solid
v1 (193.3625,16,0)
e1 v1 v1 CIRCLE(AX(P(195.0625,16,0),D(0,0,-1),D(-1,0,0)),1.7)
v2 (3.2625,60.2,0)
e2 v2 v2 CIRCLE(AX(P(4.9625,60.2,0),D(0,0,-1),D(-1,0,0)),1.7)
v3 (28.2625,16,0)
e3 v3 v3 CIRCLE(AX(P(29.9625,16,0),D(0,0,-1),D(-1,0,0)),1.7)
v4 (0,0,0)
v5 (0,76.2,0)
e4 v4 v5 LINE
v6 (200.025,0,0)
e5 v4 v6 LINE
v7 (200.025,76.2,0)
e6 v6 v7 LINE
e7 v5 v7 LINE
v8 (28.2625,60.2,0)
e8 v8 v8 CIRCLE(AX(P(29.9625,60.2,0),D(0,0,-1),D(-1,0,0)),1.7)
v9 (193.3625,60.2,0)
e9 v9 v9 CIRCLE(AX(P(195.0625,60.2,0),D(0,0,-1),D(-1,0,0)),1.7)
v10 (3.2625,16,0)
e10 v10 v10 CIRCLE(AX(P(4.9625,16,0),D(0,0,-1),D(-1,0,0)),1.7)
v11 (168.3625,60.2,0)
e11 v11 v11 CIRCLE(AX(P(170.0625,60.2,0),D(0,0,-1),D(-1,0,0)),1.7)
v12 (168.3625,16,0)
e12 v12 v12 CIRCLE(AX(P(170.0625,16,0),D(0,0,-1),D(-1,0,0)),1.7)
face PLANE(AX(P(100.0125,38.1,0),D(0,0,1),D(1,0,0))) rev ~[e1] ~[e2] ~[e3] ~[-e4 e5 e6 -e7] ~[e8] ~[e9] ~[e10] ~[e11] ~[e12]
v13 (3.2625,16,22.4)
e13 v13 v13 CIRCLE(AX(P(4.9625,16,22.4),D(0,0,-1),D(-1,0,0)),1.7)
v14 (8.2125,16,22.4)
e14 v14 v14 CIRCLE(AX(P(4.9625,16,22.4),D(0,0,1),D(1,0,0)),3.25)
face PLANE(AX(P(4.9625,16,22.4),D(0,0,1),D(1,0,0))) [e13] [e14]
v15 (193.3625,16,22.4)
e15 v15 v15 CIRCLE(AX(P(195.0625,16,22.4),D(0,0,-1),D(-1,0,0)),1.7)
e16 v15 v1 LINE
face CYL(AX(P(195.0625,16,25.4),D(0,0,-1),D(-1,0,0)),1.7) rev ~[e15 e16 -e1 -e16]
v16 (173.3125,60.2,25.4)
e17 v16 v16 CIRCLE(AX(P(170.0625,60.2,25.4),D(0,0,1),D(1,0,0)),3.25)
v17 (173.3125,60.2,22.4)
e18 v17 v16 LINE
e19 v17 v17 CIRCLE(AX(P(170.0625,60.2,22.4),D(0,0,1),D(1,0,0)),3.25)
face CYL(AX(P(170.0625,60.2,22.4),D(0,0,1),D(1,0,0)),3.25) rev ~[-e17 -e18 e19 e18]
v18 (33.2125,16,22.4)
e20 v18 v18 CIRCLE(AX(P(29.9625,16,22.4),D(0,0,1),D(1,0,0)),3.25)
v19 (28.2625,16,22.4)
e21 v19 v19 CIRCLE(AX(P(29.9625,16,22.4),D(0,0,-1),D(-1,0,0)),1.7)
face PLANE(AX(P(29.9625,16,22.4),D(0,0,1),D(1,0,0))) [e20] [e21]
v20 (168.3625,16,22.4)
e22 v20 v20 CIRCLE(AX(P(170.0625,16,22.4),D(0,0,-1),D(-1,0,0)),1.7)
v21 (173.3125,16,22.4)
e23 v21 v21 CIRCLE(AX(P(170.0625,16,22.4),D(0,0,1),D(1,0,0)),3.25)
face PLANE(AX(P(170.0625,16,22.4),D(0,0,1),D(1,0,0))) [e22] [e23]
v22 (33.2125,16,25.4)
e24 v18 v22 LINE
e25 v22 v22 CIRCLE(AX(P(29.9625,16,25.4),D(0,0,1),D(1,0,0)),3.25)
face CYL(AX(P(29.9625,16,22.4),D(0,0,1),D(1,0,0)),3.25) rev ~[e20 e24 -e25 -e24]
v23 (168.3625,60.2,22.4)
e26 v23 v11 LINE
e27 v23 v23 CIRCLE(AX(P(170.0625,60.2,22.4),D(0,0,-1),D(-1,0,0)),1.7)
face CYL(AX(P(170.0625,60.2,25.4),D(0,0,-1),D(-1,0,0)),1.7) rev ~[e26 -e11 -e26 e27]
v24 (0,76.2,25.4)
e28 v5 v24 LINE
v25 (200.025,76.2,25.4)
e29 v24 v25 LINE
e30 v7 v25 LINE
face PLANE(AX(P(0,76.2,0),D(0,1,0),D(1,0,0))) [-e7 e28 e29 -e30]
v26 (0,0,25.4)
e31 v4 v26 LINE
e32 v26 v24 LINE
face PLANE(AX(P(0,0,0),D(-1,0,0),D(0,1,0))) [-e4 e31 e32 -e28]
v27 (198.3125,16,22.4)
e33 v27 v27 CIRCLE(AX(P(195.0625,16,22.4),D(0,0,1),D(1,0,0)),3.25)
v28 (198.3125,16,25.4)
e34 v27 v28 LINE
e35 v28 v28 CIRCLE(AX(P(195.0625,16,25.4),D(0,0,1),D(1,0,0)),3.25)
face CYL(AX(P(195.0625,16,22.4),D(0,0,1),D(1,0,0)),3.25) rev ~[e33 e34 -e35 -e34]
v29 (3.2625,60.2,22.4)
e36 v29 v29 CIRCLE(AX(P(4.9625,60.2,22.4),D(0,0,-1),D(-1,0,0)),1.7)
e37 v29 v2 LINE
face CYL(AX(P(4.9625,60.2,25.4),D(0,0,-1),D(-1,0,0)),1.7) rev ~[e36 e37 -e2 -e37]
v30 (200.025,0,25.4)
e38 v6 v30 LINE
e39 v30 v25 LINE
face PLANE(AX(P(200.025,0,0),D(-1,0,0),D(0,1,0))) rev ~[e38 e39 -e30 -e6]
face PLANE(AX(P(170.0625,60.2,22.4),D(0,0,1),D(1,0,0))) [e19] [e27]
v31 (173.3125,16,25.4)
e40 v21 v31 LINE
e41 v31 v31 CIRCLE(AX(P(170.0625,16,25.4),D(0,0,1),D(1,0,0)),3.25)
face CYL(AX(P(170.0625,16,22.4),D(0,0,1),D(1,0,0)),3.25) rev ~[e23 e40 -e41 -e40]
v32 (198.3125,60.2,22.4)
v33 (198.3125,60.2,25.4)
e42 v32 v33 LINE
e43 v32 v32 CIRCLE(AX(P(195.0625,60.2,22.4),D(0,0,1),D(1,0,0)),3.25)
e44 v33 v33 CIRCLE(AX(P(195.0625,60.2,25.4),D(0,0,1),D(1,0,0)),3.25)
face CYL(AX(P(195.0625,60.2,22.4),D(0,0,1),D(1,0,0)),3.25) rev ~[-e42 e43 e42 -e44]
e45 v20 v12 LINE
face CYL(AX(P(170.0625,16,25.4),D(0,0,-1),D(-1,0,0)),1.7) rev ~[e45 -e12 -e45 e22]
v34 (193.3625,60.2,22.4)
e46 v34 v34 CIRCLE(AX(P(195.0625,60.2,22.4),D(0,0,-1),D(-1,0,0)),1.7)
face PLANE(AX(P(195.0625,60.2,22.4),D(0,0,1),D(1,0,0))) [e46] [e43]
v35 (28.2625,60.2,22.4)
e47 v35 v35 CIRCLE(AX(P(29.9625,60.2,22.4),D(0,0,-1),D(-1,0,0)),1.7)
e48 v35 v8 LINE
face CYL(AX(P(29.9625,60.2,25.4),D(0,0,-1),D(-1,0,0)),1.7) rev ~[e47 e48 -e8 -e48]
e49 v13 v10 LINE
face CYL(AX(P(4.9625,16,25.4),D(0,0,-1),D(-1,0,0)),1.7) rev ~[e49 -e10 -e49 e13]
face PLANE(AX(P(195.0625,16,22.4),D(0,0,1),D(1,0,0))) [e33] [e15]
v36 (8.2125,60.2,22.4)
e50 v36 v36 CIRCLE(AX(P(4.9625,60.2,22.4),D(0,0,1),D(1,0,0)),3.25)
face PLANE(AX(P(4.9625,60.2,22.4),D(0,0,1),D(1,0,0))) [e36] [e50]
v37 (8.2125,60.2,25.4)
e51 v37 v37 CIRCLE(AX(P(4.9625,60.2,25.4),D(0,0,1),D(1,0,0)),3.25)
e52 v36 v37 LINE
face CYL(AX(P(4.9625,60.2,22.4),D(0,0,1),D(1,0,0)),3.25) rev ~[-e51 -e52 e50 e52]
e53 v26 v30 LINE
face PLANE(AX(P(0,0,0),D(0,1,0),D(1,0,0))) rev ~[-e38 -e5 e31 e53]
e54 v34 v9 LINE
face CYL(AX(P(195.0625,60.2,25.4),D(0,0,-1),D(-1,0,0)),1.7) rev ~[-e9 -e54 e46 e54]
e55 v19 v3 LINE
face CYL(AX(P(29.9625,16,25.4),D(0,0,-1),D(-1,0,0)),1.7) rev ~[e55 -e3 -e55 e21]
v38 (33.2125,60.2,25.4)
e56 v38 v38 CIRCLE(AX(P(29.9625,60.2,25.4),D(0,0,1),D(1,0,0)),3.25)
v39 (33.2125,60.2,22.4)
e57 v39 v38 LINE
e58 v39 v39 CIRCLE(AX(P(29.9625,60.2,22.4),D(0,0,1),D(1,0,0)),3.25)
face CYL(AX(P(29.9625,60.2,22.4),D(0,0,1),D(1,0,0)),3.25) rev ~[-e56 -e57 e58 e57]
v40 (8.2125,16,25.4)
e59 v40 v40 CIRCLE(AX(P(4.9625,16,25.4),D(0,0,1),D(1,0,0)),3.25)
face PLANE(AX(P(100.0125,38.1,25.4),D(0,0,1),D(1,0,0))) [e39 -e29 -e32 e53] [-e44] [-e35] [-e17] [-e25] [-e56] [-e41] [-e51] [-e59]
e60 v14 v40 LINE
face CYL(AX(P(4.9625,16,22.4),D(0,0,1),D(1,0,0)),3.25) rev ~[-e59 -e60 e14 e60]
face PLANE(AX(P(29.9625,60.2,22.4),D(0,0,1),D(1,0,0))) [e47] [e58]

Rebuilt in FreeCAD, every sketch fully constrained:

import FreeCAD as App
import Part
import Sketcher
from FreeCAD import Vector
Q = App.Units.Quantity

doc = App.newDocument("Part")
body = doc.addObject("PartDesign::Body", "Body")

sketch1 = body.newObject("Sketcher::SketchObject", "Sketch")
sketch1.AttachmentSupport = (doc.getObject("XY_Plane"), [""])
sketch1.MapMode = "FlatFace"
sketch1.addGeometry([
    Part.LineSegment(Vector(0, 76, 0), Vector(0, 0, 0)),
    Part.LineSegment(Vector(0, 0, 0), Vector(200, 0, 0)),
    Part.LineSegment(Vector(200, 0, 0), Vector(200, 76, 0)),
    Part.LineSegment(Vector(200, 76, 0), Vector(0, 76, 0)),
], False)
sketch1.addConstraint([
    Sketcher.Constraint("Coincident", 0, 2, 1, 1),
    Sketcher.Constraint("Coincident", 1, 2, 2, 1),
    Sketcher.Constraint("Coincident", 2, 2, 3, 1),
    Sketcher.Constraint("Coincident", 3, 2, 0, 1),
    Sketcher.Constraint("Vertical", 0),
    Sketcher.Constraint("Horizontal", 1),
    Sketcher.Constraint("Vertical", 2),
    Sketcher.Constraint("Horizontal", 3),
    Sketcher.Constraint("Coincident", 0, 2, -1, 1),
    Sketcher.Constraint("DistanceY", 0, 2, 0, 1, Q("3 in")),
    Sketcher.Constraint("DistanceX", 1, 1, 1, 2, Q("7.875 in")),
])
pad1 = body.newObject("PartDesign::Pad", "Pad")
pad1.Profile = sketch1
pad1.Length = Q("1 in")

sketch2 = body.newObject("Sketcher::SketchObject", "Sketch001")
sketch2.AttachmentSupport = (doc.getObject("XY_Plane"), [""])
sketch2.MapMode = "FlatFace"
sketch2.AttachmentOffset = App.Placement(Vector(0, 0, 1 * 25.4), App.Rotation())
sketch2.addGeometry([
    Part.Circle(Vector(5, 60.2, 0), Vector(0, 0, 1), 1.7),
    Part.Circle(Vector(30, 60.2, 0), Vector(0, 0, 1), 1.7),
    Part.Circle(Vector(5, 16, 0), Vector(0, 0, 1), 1.7),
    Part.Circle(Vector(30, 16, 0), Vector(0, 0, 1), 1.7),
    Part.Circle(Vector(170.1, 60.2, 0), Vector(0, 0, 1), 1.7),
    Part.Circle(Vector(195.1, 60.2, 0), Vector(0, 0, 1), 1.7),
    Part.Circle(Vector(170.1, 16, 0), Vector(0, 0, 1), 1.7),
    Part.Circle(Vector(195.1, 16, 0), Vector(0, 0, 1), 1.7),
], False)
sketch2.addConstraint([
    Sketcher.Constraint("Equal", 0, 1),
    Sketcher.Constraint("Equal", 1, 2),
    Sketcher.Constraint("Equal", 2, 3),
    Sketcher.Constraint("Equal", 3, 4),
    Sketcher.Constraint("Equal", 4, 5),
    Sketcher.Constraint("Equal", 5, 6),
    Sketcher.Constraint("Equal", 6, 7),
    Sketcher.Constraint("Horizontal", 0, 3, 1, 3),
    Sketcher.Constraint("Horizontal", 2, 3, 3, 3),
    Sketcher.Constraint("Horizontal", 1, 3, 4, 3),
    Sketcher.Constraint("Horizontal", 4, 3, 5, 3),
    Sketcher.Constraint("Horizontal", 3, 3, 6, 3),
    Sketcher.Constraint("Horizontal", 6, 3, 7, 3),
    Sketcher.Constraint("Vertical", 0, 3, 2, 3),
    Sketcher.Constraint("Vertical", 1, 3, 3, 3),
    Sketcher.Constraint("Vertical", 4, 3, 6, 3),
    Sketcher.Constraint("Vertical", 5, 3, 7, 3),
    Sketcher.Constraint("DistanceX", 0, 3, 4, 3, Q("6.5 in")),
    Sketcher.Constraint("DistanceX", 1, 3, 5, 3, Q("6.5 in")),
    Sketcher.Constraint("Diameter", 0, Q("3.4 mm")),
    Sketcher.Constraint("DistanceX", -1, 1, 0, 3, Q("4.9625 mm")),
    Sketcher.Constraint("DistanceY", -1, 1, 0, 3, Q("60.2 mm")),
    Sketcher.Constraint("DistanceX", -1, 1, 1, 3, Q("29.9625 mm")),
    Sketcher.Constraint("DistanceY", -1, 1, 2, 3, Q("16 mm")),
])
doc.recompute()
hole = body.newObject("PartDesign::Hole", "Hole")
hole.Profile = sketch2
hole.ThreadType = "None"
hole.Diameter = 3.4
hole.DepthType = "ThroughAll"
hole.HoleCutType = "Counterbore"
hole.HoleCutDiameter = 6.5
hole.HoleCutDepth = 3

doc.recompute()
